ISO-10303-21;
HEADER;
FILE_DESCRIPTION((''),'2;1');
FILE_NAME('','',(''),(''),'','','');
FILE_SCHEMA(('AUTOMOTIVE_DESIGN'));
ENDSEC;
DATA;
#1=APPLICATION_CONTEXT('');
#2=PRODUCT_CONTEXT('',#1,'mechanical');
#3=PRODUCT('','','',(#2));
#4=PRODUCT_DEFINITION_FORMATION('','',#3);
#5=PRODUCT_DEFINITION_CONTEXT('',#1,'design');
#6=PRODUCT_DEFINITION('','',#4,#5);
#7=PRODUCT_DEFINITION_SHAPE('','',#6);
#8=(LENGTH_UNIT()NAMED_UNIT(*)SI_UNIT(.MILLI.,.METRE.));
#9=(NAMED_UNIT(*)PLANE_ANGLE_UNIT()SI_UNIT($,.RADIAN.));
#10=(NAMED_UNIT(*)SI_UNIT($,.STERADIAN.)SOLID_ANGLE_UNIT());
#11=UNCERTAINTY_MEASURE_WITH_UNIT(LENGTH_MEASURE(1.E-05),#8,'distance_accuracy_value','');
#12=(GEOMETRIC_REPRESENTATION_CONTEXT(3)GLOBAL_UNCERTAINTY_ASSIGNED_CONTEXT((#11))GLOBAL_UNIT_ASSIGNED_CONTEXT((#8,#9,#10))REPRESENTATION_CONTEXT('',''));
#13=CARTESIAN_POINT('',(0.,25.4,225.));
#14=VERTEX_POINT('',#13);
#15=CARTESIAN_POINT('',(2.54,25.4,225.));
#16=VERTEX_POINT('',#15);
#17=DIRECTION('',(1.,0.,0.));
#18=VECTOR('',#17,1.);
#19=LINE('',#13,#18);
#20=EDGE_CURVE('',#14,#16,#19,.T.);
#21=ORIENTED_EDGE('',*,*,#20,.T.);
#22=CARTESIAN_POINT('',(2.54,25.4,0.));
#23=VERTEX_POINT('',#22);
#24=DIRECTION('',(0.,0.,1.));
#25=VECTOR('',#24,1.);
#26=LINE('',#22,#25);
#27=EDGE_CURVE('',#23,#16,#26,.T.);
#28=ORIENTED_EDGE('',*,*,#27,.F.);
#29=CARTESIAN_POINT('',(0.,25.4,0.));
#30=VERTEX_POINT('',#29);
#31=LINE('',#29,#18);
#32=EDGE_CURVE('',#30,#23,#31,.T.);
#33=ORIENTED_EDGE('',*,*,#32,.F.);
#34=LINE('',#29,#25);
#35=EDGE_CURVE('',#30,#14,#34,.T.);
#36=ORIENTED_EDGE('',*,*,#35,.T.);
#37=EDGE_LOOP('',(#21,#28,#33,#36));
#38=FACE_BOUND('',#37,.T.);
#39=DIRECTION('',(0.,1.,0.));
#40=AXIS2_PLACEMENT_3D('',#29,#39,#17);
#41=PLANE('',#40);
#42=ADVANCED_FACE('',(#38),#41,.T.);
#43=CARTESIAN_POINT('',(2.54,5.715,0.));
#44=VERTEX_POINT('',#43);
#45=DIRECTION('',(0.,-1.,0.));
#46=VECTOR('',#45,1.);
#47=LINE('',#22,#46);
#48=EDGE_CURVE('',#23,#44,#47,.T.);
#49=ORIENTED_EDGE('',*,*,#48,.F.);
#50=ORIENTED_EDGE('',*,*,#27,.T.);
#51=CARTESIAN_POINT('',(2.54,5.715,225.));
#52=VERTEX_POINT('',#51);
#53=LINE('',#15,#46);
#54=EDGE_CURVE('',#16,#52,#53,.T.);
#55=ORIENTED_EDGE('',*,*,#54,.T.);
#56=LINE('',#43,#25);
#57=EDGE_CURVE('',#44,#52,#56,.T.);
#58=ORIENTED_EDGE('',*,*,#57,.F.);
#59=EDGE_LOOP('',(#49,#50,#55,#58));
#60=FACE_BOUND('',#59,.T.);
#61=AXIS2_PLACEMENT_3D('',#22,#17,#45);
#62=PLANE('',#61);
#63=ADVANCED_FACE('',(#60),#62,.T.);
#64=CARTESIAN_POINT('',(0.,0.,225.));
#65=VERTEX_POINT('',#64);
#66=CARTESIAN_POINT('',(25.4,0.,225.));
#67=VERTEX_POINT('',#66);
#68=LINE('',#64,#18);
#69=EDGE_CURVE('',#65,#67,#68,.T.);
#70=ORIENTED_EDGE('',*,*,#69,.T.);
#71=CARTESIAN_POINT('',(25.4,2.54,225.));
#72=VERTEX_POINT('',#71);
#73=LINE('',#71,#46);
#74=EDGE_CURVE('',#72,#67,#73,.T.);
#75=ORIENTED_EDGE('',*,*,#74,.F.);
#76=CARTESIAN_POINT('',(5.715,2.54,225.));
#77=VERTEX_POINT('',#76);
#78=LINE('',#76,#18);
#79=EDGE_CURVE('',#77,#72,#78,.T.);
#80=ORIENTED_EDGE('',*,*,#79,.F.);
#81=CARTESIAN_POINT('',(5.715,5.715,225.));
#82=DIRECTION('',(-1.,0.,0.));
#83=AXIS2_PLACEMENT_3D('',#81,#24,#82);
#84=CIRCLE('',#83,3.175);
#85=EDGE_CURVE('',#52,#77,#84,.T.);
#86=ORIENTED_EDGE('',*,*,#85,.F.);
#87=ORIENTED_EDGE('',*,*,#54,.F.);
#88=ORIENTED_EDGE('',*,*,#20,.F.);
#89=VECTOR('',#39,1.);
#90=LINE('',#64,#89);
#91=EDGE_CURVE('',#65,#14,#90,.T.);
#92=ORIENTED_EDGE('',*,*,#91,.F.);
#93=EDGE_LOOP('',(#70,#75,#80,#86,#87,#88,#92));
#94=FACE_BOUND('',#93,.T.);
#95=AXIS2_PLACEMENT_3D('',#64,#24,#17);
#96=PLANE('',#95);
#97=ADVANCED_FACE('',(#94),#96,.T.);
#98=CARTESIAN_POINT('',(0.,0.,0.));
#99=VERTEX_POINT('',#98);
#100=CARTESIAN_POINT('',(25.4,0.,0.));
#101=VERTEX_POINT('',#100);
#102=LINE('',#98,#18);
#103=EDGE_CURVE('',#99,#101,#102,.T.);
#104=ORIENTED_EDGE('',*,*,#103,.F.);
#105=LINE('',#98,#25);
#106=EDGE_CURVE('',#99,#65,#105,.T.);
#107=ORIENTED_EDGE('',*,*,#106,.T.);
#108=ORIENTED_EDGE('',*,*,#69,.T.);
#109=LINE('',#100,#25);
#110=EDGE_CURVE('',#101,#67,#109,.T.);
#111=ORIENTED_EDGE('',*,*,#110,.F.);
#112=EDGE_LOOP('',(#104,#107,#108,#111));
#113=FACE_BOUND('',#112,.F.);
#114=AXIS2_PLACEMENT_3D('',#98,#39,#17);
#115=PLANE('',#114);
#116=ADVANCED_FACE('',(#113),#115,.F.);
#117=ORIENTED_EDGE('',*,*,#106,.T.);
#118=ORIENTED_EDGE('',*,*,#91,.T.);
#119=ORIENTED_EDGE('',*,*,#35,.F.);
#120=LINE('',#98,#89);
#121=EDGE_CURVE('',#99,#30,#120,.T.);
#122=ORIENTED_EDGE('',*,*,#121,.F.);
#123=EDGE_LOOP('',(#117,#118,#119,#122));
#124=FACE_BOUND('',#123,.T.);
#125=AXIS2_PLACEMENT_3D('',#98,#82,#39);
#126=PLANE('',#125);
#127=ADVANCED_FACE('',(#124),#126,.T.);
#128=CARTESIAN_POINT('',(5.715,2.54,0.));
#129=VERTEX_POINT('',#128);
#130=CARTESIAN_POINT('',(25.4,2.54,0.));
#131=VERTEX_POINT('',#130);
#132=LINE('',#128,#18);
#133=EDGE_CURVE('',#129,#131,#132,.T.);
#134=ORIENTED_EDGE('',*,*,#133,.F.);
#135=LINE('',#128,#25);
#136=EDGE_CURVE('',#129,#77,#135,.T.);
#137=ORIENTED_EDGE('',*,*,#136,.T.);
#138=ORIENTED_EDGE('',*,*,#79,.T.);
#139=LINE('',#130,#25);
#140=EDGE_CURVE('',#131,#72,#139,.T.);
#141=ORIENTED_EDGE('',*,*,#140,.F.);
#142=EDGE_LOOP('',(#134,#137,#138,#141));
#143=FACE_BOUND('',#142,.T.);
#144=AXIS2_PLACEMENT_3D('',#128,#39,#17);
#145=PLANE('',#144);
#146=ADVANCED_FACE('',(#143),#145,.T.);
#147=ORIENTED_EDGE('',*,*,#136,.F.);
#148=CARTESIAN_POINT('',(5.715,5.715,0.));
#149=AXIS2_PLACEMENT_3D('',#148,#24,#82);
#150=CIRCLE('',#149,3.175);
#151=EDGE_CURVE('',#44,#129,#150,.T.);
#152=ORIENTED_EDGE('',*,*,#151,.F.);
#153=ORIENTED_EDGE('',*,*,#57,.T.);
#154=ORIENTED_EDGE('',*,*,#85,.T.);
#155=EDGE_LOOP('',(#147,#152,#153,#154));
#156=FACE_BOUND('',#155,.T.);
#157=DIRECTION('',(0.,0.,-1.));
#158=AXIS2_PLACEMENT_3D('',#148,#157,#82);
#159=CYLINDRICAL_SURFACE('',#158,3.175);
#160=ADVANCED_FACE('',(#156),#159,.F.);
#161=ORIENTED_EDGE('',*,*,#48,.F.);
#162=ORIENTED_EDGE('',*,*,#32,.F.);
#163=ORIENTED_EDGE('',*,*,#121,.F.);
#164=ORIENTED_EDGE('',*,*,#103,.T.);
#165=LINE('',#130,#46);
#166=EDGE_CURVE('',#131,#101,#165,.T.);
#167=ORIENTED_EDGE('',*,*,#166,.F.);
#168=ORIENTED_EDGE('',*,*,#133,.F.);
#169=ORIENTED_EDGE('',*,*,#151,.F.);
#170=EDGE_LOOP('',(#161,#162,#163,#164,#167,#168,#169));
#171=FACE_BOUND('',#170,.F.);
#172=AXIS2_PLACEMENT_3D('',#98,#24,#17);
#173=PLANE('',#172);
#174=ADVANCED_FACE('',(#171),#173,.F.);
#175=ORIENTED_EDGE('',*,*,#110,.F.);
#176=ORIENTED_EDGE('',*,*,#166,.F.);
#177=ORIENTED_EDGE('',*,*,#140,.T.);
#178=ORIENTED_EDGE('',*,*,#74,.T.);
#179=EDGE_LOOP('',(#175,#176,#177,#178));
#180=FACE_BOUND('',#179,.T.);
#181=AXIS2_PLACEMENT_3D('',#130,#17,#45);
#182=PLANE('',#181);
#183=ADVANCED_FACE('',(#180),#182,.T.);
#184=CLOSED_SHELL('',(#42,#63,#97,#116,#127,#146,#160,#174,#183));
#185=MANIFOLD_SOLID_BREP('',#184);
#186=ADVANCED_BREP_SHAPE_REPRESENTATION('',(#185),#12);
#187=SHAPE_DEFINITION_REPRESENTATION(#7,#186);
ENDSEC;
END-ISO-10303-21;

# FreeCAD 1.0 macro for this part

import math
import FreeCAD as App
import Part
import Sketcher
from FreeCAD import Vector
Q = App.Units.Quantity

doc = App.newDocument("Part")
body = doc.addObject("PartDesign::Body", "Body")

# Sketch on XY plane
sketch1 = body.newObject("Sketcher::SketchObject", "Sketch")
sketch1.AttachmentSupport = (doc.getObject("XY_Plane"), [""])
sketch1.MapMode = "FlatFace"
sketch1.addGeometry([
    Part.LineSegment(Vector(0, 25.4, 0), Vector(0, 0, 0)),  # 0
    Part.LineSegment(Vector(0, 0, 0), Vector(25.4, 0, 0)),  # 1
    Part.LineSegment(Vector(25.4, 0, 0), Vector(25.4, 2.54, 0)),  # 2
    Part.LineSegment(Vector(25.4, 2.54, 0), Vector(5.715, 2.54, 0)),  # 3
    Part.ArcOfCircle(Part.Circle(Vector(5.715, 5.715, 0), Vector(0, 0, 1), 3.175), math.radians(180), math.radians(270)),  # 4
    Part.LineSegment(Vector(2.54, 5.715, 0), Vector(2.54, 25.4, 0)),  # 5
    Part.LineSegment(Vector(2.54, 25.4, 0), Vector(0, 25.4, 0)),  # 6
], False)
sketch1.addConstraint([
    Sketcher.Constraint("Coincident", 0, 2, 1, 1),
    Sketcher.Constraint("Coincident", 1, 2, 2, 1),
    Sketcher.Constraint("Coincident", 2, 2, 3, 1),
    Sketcher.Constraint("Tangent", 3, 2, 4, 2),
    Sketcher.Constraint("Tangent", 4, 1, 5, 1),
    Sketcher.Constraint("Coincident", 5, 2, 6, 1),
    Sketcher.Constraint("Coincident", 6, 2, 0, 1),
    Sketcher.Constraint("Vertical", 0),
    Sketcher.Constraint("Horizontal", 1),
    Sketcher.Constraint("Vertical", 2),
    Sketcher.Constraint("Horizontal", 3),
    Sketcher.Constraint("Vertical", 5),
    Sketcher.Constraint("Horizontal", 6),
    Sketcher.Constraint("Coincident", 0, 2, -1, 1),
    Sketcher.Constraint("Equal", 1, 0),
    Sketcher.Constraint("Equal", 6, 2),
    Sketcher.Constraint("DistanceX", 1, 1, 1, 2, Q("1 in")),
    Sketcher.Constraint("DistanceX", 6, 2, 6, 1, Q("0.1 in")),
    Sketcher.Constraint("Radius", 4, Q("0.125 in")),
])
pad1 = body.newObject("PartDesign::Pad", "Pad")
pad1.Profile = sketch1
pad1.Length = 225

doc.recompute()
